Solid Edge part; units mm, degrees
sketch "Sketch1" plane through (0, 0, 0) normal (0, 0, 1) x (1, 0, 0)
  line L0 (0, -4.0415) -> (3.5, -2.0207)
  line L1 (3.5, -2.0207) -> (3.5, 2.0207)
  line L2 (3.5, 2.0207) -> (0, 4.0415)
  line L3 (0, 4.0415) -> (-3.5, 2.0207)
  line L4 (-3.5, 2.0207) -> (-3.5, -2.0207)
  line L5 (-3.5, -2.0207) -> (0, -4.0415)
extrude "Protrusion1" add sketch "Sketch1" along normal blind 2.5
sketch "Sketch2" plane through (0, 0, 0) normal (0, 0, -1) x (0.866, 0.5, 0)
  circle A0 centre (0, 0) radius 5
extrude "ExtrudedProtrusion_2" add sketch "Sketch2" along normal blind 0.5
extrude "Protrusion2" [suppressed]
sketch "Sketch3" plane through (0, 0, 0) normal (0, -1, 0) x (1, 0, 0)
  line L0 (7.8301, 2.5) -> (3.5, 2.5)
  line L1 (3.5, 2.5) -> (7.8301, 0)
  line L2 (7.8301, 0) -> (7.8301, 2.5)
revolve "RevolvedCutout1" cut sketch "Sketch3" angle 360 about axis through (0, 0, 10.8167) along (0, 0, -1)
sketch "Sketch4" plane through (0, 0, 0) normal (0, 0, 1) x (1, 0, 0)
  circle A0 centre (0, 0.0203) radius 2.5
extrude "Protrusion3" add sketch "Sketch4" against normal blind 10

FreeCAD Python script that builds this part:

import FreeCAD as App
import Part
import Sketcher
from FreeCAD import Vector
Q = App.Units.Quantity

doc = App.newDocument("Part")
body = doc.addObject("PartDesign::Body", "Body")

sketch1 = body.newObject("Sketcher::SketchObject", "Sketch")
sketch1.AttachmentSupport = (doc.getObject("XY_Plane"), [""])
sketch1.MapMode = "FlatFace"
sketch1.addGeometry([
    Part.LineSegment(Vector(-3.5, -2, 0), Vector(0, -4, 0)),
    Part.LineSegment(Vector(0, -4, 0), Vector(3.5, -2, 0)),
    Part.LineSegment(Vector(3.5, -2, 0), Vector(3.5, 2, 0)),
    Part.LineSegment(Vector(3.5, 2, 0), Vector(0, 4, 0)),
    Part.LineSegment(Vector(0, 4, 0), Vector(-3.5, 2, 0)),
    Part.LineSegment(Vector(-3.5, 2, 0), Vector(-3.5, -2, 0)),
], False)
sketch1.addConstraint([
    Sketcher.Constraint("Coincident", 0, 2, 1, 1),
    Sketcher.Constraint("Coincident", 1, 2, 2, 1),
    Sketcher.Constraint("Coincident", 2, 2, 3, 1),
    Sketcher.Constraint("Coincident", 3, 2, 4, 1),
    Sketcher.Constraint("Coincident", 4, 2, 5, 1),
    Sketcher.Constraint("Coincident", 5, 2, 0, 1),
    Sketcher.Constraint("Vertical", 2),
    Sketcher.Constraint("Vertical", 5),
    Sketcher.Constraint("Symmetric", 0, 2, 3, 2, -1, 1),
    Sketcher.Constraint("Symmetric", 1, 2, 4, 2, -1, 1),
    Sketcher.Constraint("PointOnObject", 0, 2, -2),
    Sketcher.Constraint("Parallel", 0, 3),
    Sketcher.Constraint("Horizontal", 2, 2, 4, 2),
    Sketcher.Constraint("Angle", 0, Q("-30.001 deg")),
    Sketcher.Constraint("DistanceX", 4, 2, 2, 2, 7.0),
    Sketcher.Constraint("DistanceY", 2, 1, 2, 2, 4.0414),
])
pad1 = body.newObject("PartDesign::Pad", "Pad")
pad1.Profile = sketch1
pad1.Length = 2.5

sketch2 = body.newObject("Sketcher::SketchObject", "Sketch001")
sketch2.AttachmentSupport = (doc.getObject("XY_Plane"), [""])
sketch2.MapMode = "FlatFace"
sketch2.addGeometry(Part.Circle(Vector(0, 0, 0), Vector(0, 0, 1), 5), False)
sketch2.addConstraint([
    Sketcher.Constraint("Coincident", 0, 3, -1, 1),
    Sketcher.Constraint("Diameter", 0, 10.0),
])
pad2 = body.newObject("PartDesign::Pad", "Pad001")
pad2.Profile = sketch2
pad2.Length = 0.5
pad2.Reversed = True

sketch3 = body.newObject("Sketcher::SketchObject", "Sketch002")
sketch3.AttachmentSupport = (doc.getObject("XZ_Plane"), [""])
sketch3.MapMode = "FlatFace"
sketch3.addGeometry([
    Part.LineSegment(Vector(7.8, 0, 0), Vector(7.8, 2.5, 0)),
    Part.LineSegment(Vector(7.8, 2.5, 0), Vector(3.5, 2.5, 0)),
    Part.LineSegment(Vector(3.5, 2.5, 0), Vector(7.8, 0, 0)),
], False)
sketch3.addConstraint([
    Sketcher.Constraint("Coincident", 0, 2, 1, 1),
    Sketcher.Constraint("Coincident", 1, 2, 2, 1),
    Sketcher.Constraint("Coincident", 2, 2, 0, 1),
    Sketcher.Constraint("Vertical", 0),
    Sketcher.Constraint("Horizontal", 1),
    Sketcher.Constraint("PointOnObject", 2, 2, -1),
    Sketcher.Constraint("Angle", 2, Q("-30.0002 deg")),
    Sketcher.Constraint("Distance", 2, 5.0),
    Sketcher.Constraint("DistanceX", -1, 1, 1, 2, 3.5),
])
groove = body.newObject("PartDesign::Groove", "Groove")
groove.Profile = sketch3
groove.ReferenceAxis = (sketch3, ["V_Axis"])
groove.Angle = 360

sketch4 = body.newObject("Sketcher::SketchObject", "Sketch003")
sketch4.AttachmentSupport = (doc.getObject("XY_Plane"), [""])
sketch4.MapMode = "FlatFace"
sketch4.addGeometry(Part.Circle(Vector(0, 0, 0), Vector(0, 0, 1), 2.5), False)
sketch4.addConstraint([
    Sketcher.Constraint("PointOnObject", 0, 3, -2),
    Sketcher.Constraint("Diameter", 0, 5.0),
    Sketcher.Constraint("DistanceY", -1, 1, 0, 3, 0.0203),
])
pad3 = body.newObject("PartDesign::Pad", "Pad002")
pad3.Profile = sketch4
pad3.Length = 10
pad3.Reversed = True

doc.recompute()
